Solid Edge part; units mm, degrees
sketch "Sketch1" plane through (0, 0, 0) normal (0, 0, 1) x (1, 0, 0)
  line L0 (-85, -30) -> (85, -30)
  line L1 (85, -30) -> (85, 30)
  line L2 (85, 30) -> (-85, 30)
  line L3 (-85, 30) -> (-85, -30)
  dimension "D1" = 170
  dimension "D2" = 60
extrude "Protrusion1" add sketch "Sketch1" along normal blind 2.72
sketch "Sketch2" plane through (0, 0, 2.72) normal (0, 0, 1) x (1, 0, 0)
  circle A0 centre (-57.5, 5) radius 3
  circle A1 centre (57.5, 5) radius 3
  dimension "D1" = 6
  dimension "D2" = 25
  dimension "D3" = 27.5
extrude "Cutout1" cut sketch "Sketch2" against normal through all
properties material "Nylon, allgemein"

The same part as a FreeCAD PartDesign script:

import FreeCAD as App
import Part
import Sketcher

V = App.Vector


def add_polygon(sketch, points):
    """Adds a closed chain of lines whose ends are joined by coincident constraints."""
    first, n = sketch.GeometryCount, len(points)
    for a, b in zip(points, points[1:] + points[:1]):
        sketch.addGeometry(Part.LineSegment(App.Vector(*a, 0), App.Vector(*b, 0)), False)
    for i in range(n):
        sketch.addConstraint(Sketcher.Constraint("Coincident", first + i, 2, first + (i + 1) % n, 1))

doc = App.newDocument("Part")
body = doc.addObject("PartDesign::Body", "Body")

# Sketch on XY plane
sketch1 = body.newObject("Sketcher::SketchObject", "Sketch")
sketch1.AttachmentSupport = (doc.getObject("XY_Plane"), [""])
sketch1.MapMode = "FlatFace"
add_polygon(sketch1, [(-85, 30), (-85, -30), (85, -30), (85, 30)])  # lines 0-3
sketch1.addConstraint(Sketcher.Constraint("Vertical", 0))
sketch1.addConstraint(Sketcher.Constraint("Horizontal", 1))
sketch1.addConstraint(Sketcher.Constraint("Vertical", 2))
sketch1.addConstraint(Sketcher.Constraint("Horizontal", 3))
sketch1.addConstraint(Sketcher.Constraint("Symmetric", 0, 2, 2, 2, -1, 1))
sketch1.addConstraint(Sketcher.Constraint("DistanceX", 0, 2, -1, 1, 85.0))
sketch1.addConstraint(Sketcher.Constraint("DistanceY", 0, 2, 0, 1, 60.0))
pad1 = body.newObject("PartDesign::Pad", "Pad")
pad1.Profile = sketch1
pad1.Length = 2.72

# Sketch on XY plane
sketch2 = body.newObject("Sketcher::SketchObject", "Sketch001")
sketch2.AttachmentSupport = (doc.getObject("XY_Plane"), [""])
sketch2.MapMode = "FlatFace"
sketch2.AttachmentOffset = App.Placement(V(0, 0, 2.72), App.Rotation())
sketch2.addGeometry(Part.Circle(V(-57.5, 5, 0), V(0, 0, 1), 3), False)
sketch2.addGeometry(Part.Circle(V(57.5, 5, 0), V(0, 0, 1), 3), False)
sketch2.addConstraint(Sketcher.Constraint("Equal", 0, 1))
sketch2.addConstraint(Sketcher.Constraint("Symmetric", 0, 3, 1, 3, -2))
sketch2.addConstraint(Sketcher.Constraint("Diameter", 0, 6.0))
sketch2.addConstraint(Sketcher.Constraint("DistanceX", 0, 3, -1, 1, 57.5))
sketch2.addConstraint(Sketcher.Constraint("DistanceY", -1, 1, 0, 3, 5.0))
pocket1 = body.newObject("PartDesign::Pocket", "Pocket")
pocket1.Profile = sketch2
pocket1.Type = "ThroughAll"

doc.recompute()
